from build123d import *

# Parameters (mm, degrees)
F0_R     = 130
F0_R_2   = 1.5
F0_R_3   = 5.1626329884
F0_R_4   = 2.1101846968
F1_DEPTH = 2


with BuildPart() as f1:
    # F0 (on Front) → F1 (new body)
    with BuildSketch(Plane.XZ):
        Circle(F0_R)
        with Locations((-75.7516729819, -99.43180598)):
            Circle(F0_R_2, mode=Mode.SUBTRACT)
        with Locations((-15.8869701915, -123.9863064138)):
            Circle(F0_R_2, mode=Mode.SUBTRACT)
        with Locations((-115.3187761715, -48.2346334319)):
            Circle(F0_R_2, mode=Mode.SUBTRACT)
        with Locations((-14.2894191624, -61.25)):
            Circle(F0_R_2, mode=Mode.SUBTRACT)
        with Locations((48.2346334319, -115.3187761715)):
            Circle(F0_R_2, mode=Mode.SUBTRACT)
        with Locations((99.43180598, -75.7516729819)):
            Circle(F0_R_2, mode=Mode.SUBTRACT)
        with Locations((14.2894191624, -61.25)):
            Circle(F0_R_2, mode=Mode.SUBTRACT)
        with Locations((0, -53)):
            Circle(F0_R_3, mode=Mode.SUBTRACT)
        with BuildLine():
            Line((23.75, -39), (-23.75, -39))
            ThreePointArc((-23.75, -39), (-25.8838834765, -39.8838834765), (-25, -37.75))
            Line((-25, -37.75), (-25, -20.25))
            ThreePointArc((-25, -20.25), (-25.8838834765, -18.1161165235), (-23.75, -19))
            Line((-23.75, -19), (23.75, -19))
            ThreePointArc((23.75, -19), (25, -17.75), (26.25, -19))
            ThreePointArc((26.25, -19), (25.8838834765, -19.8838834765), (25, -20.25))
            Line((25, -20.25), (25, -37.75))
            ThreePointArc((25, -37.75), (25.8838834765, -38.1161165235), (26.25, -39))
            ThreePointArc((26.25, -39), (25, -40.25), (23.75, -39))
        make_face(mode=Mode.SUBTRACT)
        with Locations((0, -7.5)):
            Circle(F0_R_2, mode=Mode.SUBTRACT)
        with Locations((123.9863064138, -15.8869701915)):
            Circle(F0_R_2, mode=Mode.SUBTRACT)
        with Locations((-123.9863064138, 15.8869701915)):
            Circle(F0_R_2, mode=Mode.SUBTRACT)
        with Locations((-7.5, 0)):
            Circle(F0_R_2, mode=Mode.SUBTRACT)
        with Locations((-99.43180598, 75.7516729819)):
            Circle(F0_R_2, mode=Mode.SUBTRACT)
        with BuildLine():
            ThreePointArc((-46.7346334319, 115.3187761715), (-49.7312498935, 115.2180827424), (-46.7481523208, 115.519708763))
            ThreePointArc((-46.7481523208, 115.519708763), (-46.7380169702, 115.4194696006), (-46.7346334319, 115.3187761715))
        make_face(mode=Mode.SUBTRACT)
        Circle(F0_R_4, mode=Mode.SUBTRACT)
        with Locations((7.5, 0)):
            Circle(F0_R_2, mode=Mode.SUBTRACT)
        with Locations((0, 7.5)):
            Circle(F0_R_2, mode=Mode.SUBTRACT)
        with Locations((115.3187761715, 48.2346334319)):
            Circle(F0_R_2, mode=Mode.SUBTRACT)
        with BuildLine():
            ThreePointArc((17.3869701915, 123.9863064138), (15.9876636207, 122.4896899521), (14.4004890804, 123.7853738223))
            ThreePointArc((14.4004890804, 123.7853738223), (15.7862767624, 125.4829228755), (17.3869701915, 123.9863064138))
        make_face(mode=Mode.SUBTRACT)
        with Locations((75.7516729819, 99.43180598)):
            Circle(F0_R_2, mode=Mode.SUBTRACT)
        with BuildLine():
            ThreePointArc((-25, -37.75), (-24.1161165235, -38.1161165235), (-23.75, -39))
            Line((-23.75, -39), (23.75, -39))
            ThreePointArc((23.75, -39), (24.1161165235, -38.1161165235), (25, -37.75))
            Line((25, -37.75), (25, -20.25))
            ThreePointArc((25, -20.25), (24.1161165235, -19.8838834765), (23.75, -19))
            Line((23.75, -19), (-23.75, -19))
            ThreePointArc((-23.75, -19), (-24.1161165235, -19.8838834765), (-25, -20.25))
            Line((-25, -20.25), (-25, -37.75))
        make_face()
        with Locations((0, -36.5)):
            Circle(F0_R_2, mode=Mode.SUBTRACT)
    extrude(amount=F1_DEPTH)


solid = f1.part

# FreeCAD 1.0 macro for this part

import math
import FreeCAD as App
import Part
import Sketcher
from FreeCAD import Vector

doc = App.newDocument("Part")
params = doc.addObject("Spreadsheet::Sheet", "Params")
for row, (alias, value) in enumerate([
    ("sketch1_diameter", "260 mm"),
    ("sketch1_diameter2", "3 mm"),
    ("sketch1_radius", "1.25 mm"),
    ("pad1_length", "2 mm"),
], start=1):
    params.set(f"A{row}", alias)
    params.set(f"B{row}", "=" + value)
    params.setAlias(f"B{row}", alias)

body = doc.addObject("PartDesign::Body", "Body")

# Sketch on XZ plane
sketch1 = doc.addObject("Sketcher::SketchObject", "Sketch")
body.addObject(sketch1)
sketch1.AttachmentSupport = (doc.XZ_Plane, [""])
sketch1.MapMode = "FlatFace"
sketch1.addGeometry([
    Part.Circle(Vector(0, 0, 0), Vector(0, 0, 1), 130),  # 0
    Part.Circle(Vector(-75.75, -99.43, 0), Vector(0, 0, 1), 1.5),  # 1
    Part.Circle(Vector(-15.89, -123.99, 0), Vector(0, 0, 1), 1.5),  # 2
    Part.Circle(Vector(-115.32, -48.23, 0), Vector(0, 0, 1), 1.5),  # 3
    Part.Circle(Vector(-14.29, -61.25, 0), Vector(0, 0, 1), 1.5),  # 4
    Part.ArcOfCircle(Part.Circle(Vector(-25, -39, 0), Vector(0, 0, 1), 1.25), math.radians(90), math.radians(360)),  # 5
    Part.ArcOfCircle(Part.Circle(Vector(-25, -39, 0), Vector(0, 0, 1), 1.25), math.radians(0), math.radians(90)),  # 6
    Part.ArcOfCircle(Part.Circle(Vector(-25, -19, 0), Vector(0, 0, 1), 1.25), math.radians(0), math.radians(270)),  # 7
    Part.ArcOfCircle(Part.Circle(Vector(-25, -19, 0), Vector(0, 0, 1), 1.25), math.radians(-90), math.radians(0)),  # 8
    Part.Circle(Vector(-7.5, 0, 0), Vector(0, 0, 1), 1.5),  # 9
    Part.Circle(Vector(48.23, -115.32, 0), Vector(0, 0, 1), 1.5),  # 10
    Part.Circle(Vector(99.43, -75.75, 0), Vector(0, 0, 1), 1.5),  # 11
    Part.Circle(Vector(14.29, -61.25, 0), Vector(0, 0, 1), 1.5),  # 12
    Part.Circle(Vector(0, -53, 0), Vector(0, 0, 1), 5.16),  # 13
    Part.Circle(Vector(0, -36.5, 0), Vector(0, 0, 1), 1.5),  # 14
    Part.ArcOfCircle(Part.Circle(Vector(25, -39, 0), Vector(0, 0, 1), 1.25), math.radians(180), math.radians(360)),  # 15
    Part.ArcOfCircle(Part.Circle(Vector(25, -39, 0), Vector(0, 0, 1), 1.25), math.radians(90), math.radians(180)),  # 16
    Part.ArcOfCircle(Part.Circle(Vector(25, -39, 0), Vector(0, 0, 1), 1.25), math.radians(0), math.radians(90)),  # 17
    Part.ArcOfCircle(Part.Circle(Vector(25, -19, 0), Vector(0, 0, 1), 1.25), math.radians(-90), math.radians(0)),  # 18
    Part.ArcOfCircle(Part.Circle(Vector(25, -19, 0), Vector(0, 0, 1), 1.25), math.radians(180), math.radians(270)),  # 19
    Part.ArcOfCircle(Part.Circle(Vector(25, -19, 0), Vector(0, 0, 1), 1.25), math.radians(0), math.radians(180)),  # 20
    Part.Circle(Vector(0, -7.5, 0), Vector(0, 0, 1), 1.5),  # 21
    Part.Circle(Vector(0, 0, 0), Vector(0, 0, 1), 2.11),  # 22
    Part.Circle(Vector(7.5, 0, 0), Vector(0, 0, 1), 1.5),  # 23
    Part.Circle(Vector(123.99, -15.89, 0), Vector(0, 0, 1), 1.5),  # 24
    Part.Circle(Vector(-123.99, 15.89, 0), Vector(0, 0, 1), 1.5),  # 25
    Part.Circle(Vector(-99.43, 75.75, 0), Vector(0, 0, 1), 1.5),  # 26
    Part.ArcOfCircle(Part.Circle(Vector(-48.23, 115.32, 0), Vector(0, 0, 1), 1.5), math.radians(0), math.radians(7.7)),  # 27
    Part.ArcOfCircle(Part.Circle(Vector(-48.23, 115.32, 0), Vector(0, 0, 1), 1.5), math.radians(8), math.radians(360)),  # 28
    Part.Circle(Vector(0, 7.5, 0), Vector(0, 0, 1), 1.5),  # 29
    Part.Circle(Vector(115.32, 48.23, 0), Vector(0, 0, 1), 1.5),  # 30
    Part.ArcOfCircle(Part.Circle(Vector(15.89, 123.99, 0), Vector(0, 0, 1), 1.5), math.radians(0), math.radians(188)),  # 31
    Part.ArcOfCircle(Part.Circle(Vector(15.89, 123.99, 0), Vector(0, 0, 1), 1.5), math.radians(-172), math.radians(0)),  # 32
    Part.Circle(Vector(75.75, 99.43, 0), Vector(0, 0, 1), 1.5),  # 33
], False)
sketch1.addConstraint([
    Sketcher.Constraint("Tangent", 5, 1, 6, 2),
    Sketcher.Constraint("Coincident", 6, 1, 5, 2),
    Sketcher.Constraint("Tangent", 7, 1, 8, 2),
    Sketcher.Constraint("Coincident", 8, 1, 7, 2),
    Sketcher.Constraint("Tangent", 15, 1, 16, 2),
    Sketcher.Constraint("Tangent", 16, 1, 17, 2),
    Sketcher.Constraint("Tangent", 17, 1, 15, 2),
    Sketcher.Constraint("Tangent", 18, 1, 19, 2),
    Sketcher.Constraint("Tangent", 19, 1, 20, 2),
    Sketcher.Constraint("Tangent", 20, 1, 18, 2),
    Sketcher.Constraint("Tangent", 27, 1, 28, 2),
    Sketcher.Constraint("Coincident", 28, 1, 27, 2),
    Sketcher.Constraint("Tangent", 31, 1, 32, 2),
    Sketcher.Constraint("Coincident", 32, 1, 31, 2),
    Sketcher.Constraint("Coincident", 0, 3, -1, 1),
    Sketcher.Constraint("Coincident", 22, 3, -1, 1),
    Sketcher.Constraint("Equal", 1, 2),
    Sketcher.Constraint("Equal", 2, 3),
    Sketcher.Constraint("Equal", 3, 4),
    Sketcher.Constraint("Equal", 6, 7),
    Sketcher.Constraint("Equal", 4, 9),
    Sketcher.Constraint("Equal", 9, 10),
    Sketcher.Constraint("Equal", 10, 11),
    Sketcher.Constraint("Equal", 11, 12),
    Sketcher.Constraint("Equal", 12, 14),
    Sketcher.Constraint("Equal", 8, 15),
    Sketcher.Constraint("Equal", 17, 18),
    Sketcher.Constraint("Equal", 14, 21),
    Sketcher.Constraint("Equal", 21, 23),
    Sketcher.Constraint("Equal", 23, 24),
    Sketcher.Constraint("Equal", 24, 25),
    Sketcher.Constraint("Equal", 25, 26),
    Sketcher.Constraint("Equal", 26, 27),
    Sketcher.Constraint("Equal", 28, 29),
    Sketcher.Constraint("Equal", 29, 30),
    Sketcher.Constraint("Equal", 30, 31),
    Sketcher.Constraint("Equal", 32, 33),
    Sketcher.Constraint("Symmetric", 9, 3, 23, 3, -1, 1),
    Sketcher.Constraint("Symmetric", 24, 3, 25, 3, -1, 1),
    Sketcher.Constraint("Symmetric", 11, 3, 26, 3, -1, 1),
    Sketcher.Constraint("Symmetric", 10, 3, 27, 3, -1, 1),
    Sketcher.Constraint("Symmetric", 21, 3, 29, 3, -1, 1),
    Sketcher.Constraint("Symmetric", 3, 3, 30, 3, -1, 1),
    Sketcher.Constraint("Symmetric", 2, 3, 31, 3, -1, 1),
    Sketcher.Constraint("Symmetric", 1, 3, 33, 3, -1, 1),
    Sketcher.Constraint("Symmetric", 4, 3, 12, 3, -2),
    Sketcher.Constraint("Symmetric", 5, 3, 15, 3, -2),
    Sketcher.Constraint("Symmetric", 7, 3, 18, 3, -2),
    Sketcher.Constraint("PointOnObject", 9, 3, -1),
    Sketcher.Constraint("PointOnObject", 13, 3, -2),
    Sketcher.Constraint("PointOnObject", 14, 3, -2),
    Sketcher.Constraint("PointOnObject", 21, 3, -2),
    Sketcher.Constraint("Horizontal", 17, 3, 6, 1),
    Sketcher.Constraint("Horizontal", 20, 3, 7, 1),
    Sketcher.Constraint("Horizontal", 6, 1, 15, 1),
    Sketcher.Constraint("Horizontal", 15, 1, 17, 1),
    Sketcher.Constraint("Horizontal", 7, 1, 19, 1),
    Sketcher.Constraint("Horizontal", 19, 1, 20, 1),
    Sketcher.Constraint("Horizontal", 28, 3, 27, 1),
    Sketcher.Constraint("Horizontal", 32, 3, 31, 1),
    Sketcher.Constraint("Vertical", 6, 3, 7, 3),
    Sketcher.Constraint("Vertical", 8, 3, 5, 1),
    Sketcher.Constraint("Vertical", 5, 1, 8, 1),
    Sketcher.Constraint("Vertical", 20, 3, 16, 1),
    Sketcher.Constraint("Vertical", 16, 1, 18, 1),
    Sketcher.Constraint("Diameter", 0, 260.0),
    Sketcher.Constraint("Diameter", 1, 3.0),
    Sketcher.Constraint("Radius", 5, 1.25),
    Sketcher.Constraint("DistanceX", 5, 3, -1, 1, 25.0),
    Sketcher.Constraint("DistanceY", 5, 3, -1, 1, 39.0),
    Sketcher.Constraint("DistanceY", 7, 3, -1, 1, 19.0),
    Sketcher.Constraint("DistanceY", 13, 3, -1, 1, 53.0),
    Sketcher.Constraint("DistanceX", 9, 3, 23, 3, 15.0),
    Sketcher.Constraint("DistanceY", 21, 3, 29, 3, 15.0),
    Sketcher.Constraint("DistanceY", 14, 3, -1, 1, 36.5),
    Sketcher.Constraint("Diameter", 22, 4.220369),
    Sketcher.Constraint("DistanceY", 4, 3, -1, 1, 61.25),
    Sketcher.Constraint("Diameter", 13, 10.325266),
    Sketcher.Constraint("DistanceY", 2, 3, 1, 3, 24.5545),
    Sketcher.Constraint("DistanceX", 11, 3, 24, 3, 24.5545),
    Sketcher.Constraint("DistanceX", 2, 3, -1, 1, 15.88697),
    Sketcher.Constraint("DistanceX", 4, 3, -1, 1, 14.289419),
    Sketcher.Constraint("DistanceY", 24, 3, -1, 1, 15.88697),
    Sketcher.Constraint("DistanceY", -1, 1, 28, 1, 115.519709),
    Sketcher.Constraint("DistanceX", -1, 1, 32, 1, 14.400489),
    Sketcher.Constraint("DistanceY", 2, 3, 10, 3, 8.66753),
    Sketcher.Constraint("DistanceX", 25, 3, 3, 3, 8.66753),
    Sketcher.Constraint("DistanceX", 28, 1, 27, 1, 0.013519),
    Sketcher.Constraint("DistanceX", 28, 1, 32, 1, 61.148641),
    Sketcher.Constraint("DistanceX", 1, 3, -1, 1, 75.751673),
    Sketcher.Constraint("DistanceX", 3, 3, -1, 1, 115.318776),
    Sketcher.Constraint("DistanceY", 3, 3, -1, 1, 48.234633),
    Sketcher.Constraint("DistanceY", 11, 3, -1, 1, 75.751673),
])
sketch1.setExpression("Constraints[65]", "Params.sketch1_diameter")
sketch1.setExpression("Constraints[66]", "Params.sketch1_diameter2")
sketch1.setExpression("Constraints[67]", "Params.sketch1_radius")
pad1 = doc.addObject("PartDesign::Pad", "Pad")
body.addObject(pad1)
pad1.Profile = sketch1
pad1.setExpression("Length", "Params.pad1_length")

doc.recompute()
